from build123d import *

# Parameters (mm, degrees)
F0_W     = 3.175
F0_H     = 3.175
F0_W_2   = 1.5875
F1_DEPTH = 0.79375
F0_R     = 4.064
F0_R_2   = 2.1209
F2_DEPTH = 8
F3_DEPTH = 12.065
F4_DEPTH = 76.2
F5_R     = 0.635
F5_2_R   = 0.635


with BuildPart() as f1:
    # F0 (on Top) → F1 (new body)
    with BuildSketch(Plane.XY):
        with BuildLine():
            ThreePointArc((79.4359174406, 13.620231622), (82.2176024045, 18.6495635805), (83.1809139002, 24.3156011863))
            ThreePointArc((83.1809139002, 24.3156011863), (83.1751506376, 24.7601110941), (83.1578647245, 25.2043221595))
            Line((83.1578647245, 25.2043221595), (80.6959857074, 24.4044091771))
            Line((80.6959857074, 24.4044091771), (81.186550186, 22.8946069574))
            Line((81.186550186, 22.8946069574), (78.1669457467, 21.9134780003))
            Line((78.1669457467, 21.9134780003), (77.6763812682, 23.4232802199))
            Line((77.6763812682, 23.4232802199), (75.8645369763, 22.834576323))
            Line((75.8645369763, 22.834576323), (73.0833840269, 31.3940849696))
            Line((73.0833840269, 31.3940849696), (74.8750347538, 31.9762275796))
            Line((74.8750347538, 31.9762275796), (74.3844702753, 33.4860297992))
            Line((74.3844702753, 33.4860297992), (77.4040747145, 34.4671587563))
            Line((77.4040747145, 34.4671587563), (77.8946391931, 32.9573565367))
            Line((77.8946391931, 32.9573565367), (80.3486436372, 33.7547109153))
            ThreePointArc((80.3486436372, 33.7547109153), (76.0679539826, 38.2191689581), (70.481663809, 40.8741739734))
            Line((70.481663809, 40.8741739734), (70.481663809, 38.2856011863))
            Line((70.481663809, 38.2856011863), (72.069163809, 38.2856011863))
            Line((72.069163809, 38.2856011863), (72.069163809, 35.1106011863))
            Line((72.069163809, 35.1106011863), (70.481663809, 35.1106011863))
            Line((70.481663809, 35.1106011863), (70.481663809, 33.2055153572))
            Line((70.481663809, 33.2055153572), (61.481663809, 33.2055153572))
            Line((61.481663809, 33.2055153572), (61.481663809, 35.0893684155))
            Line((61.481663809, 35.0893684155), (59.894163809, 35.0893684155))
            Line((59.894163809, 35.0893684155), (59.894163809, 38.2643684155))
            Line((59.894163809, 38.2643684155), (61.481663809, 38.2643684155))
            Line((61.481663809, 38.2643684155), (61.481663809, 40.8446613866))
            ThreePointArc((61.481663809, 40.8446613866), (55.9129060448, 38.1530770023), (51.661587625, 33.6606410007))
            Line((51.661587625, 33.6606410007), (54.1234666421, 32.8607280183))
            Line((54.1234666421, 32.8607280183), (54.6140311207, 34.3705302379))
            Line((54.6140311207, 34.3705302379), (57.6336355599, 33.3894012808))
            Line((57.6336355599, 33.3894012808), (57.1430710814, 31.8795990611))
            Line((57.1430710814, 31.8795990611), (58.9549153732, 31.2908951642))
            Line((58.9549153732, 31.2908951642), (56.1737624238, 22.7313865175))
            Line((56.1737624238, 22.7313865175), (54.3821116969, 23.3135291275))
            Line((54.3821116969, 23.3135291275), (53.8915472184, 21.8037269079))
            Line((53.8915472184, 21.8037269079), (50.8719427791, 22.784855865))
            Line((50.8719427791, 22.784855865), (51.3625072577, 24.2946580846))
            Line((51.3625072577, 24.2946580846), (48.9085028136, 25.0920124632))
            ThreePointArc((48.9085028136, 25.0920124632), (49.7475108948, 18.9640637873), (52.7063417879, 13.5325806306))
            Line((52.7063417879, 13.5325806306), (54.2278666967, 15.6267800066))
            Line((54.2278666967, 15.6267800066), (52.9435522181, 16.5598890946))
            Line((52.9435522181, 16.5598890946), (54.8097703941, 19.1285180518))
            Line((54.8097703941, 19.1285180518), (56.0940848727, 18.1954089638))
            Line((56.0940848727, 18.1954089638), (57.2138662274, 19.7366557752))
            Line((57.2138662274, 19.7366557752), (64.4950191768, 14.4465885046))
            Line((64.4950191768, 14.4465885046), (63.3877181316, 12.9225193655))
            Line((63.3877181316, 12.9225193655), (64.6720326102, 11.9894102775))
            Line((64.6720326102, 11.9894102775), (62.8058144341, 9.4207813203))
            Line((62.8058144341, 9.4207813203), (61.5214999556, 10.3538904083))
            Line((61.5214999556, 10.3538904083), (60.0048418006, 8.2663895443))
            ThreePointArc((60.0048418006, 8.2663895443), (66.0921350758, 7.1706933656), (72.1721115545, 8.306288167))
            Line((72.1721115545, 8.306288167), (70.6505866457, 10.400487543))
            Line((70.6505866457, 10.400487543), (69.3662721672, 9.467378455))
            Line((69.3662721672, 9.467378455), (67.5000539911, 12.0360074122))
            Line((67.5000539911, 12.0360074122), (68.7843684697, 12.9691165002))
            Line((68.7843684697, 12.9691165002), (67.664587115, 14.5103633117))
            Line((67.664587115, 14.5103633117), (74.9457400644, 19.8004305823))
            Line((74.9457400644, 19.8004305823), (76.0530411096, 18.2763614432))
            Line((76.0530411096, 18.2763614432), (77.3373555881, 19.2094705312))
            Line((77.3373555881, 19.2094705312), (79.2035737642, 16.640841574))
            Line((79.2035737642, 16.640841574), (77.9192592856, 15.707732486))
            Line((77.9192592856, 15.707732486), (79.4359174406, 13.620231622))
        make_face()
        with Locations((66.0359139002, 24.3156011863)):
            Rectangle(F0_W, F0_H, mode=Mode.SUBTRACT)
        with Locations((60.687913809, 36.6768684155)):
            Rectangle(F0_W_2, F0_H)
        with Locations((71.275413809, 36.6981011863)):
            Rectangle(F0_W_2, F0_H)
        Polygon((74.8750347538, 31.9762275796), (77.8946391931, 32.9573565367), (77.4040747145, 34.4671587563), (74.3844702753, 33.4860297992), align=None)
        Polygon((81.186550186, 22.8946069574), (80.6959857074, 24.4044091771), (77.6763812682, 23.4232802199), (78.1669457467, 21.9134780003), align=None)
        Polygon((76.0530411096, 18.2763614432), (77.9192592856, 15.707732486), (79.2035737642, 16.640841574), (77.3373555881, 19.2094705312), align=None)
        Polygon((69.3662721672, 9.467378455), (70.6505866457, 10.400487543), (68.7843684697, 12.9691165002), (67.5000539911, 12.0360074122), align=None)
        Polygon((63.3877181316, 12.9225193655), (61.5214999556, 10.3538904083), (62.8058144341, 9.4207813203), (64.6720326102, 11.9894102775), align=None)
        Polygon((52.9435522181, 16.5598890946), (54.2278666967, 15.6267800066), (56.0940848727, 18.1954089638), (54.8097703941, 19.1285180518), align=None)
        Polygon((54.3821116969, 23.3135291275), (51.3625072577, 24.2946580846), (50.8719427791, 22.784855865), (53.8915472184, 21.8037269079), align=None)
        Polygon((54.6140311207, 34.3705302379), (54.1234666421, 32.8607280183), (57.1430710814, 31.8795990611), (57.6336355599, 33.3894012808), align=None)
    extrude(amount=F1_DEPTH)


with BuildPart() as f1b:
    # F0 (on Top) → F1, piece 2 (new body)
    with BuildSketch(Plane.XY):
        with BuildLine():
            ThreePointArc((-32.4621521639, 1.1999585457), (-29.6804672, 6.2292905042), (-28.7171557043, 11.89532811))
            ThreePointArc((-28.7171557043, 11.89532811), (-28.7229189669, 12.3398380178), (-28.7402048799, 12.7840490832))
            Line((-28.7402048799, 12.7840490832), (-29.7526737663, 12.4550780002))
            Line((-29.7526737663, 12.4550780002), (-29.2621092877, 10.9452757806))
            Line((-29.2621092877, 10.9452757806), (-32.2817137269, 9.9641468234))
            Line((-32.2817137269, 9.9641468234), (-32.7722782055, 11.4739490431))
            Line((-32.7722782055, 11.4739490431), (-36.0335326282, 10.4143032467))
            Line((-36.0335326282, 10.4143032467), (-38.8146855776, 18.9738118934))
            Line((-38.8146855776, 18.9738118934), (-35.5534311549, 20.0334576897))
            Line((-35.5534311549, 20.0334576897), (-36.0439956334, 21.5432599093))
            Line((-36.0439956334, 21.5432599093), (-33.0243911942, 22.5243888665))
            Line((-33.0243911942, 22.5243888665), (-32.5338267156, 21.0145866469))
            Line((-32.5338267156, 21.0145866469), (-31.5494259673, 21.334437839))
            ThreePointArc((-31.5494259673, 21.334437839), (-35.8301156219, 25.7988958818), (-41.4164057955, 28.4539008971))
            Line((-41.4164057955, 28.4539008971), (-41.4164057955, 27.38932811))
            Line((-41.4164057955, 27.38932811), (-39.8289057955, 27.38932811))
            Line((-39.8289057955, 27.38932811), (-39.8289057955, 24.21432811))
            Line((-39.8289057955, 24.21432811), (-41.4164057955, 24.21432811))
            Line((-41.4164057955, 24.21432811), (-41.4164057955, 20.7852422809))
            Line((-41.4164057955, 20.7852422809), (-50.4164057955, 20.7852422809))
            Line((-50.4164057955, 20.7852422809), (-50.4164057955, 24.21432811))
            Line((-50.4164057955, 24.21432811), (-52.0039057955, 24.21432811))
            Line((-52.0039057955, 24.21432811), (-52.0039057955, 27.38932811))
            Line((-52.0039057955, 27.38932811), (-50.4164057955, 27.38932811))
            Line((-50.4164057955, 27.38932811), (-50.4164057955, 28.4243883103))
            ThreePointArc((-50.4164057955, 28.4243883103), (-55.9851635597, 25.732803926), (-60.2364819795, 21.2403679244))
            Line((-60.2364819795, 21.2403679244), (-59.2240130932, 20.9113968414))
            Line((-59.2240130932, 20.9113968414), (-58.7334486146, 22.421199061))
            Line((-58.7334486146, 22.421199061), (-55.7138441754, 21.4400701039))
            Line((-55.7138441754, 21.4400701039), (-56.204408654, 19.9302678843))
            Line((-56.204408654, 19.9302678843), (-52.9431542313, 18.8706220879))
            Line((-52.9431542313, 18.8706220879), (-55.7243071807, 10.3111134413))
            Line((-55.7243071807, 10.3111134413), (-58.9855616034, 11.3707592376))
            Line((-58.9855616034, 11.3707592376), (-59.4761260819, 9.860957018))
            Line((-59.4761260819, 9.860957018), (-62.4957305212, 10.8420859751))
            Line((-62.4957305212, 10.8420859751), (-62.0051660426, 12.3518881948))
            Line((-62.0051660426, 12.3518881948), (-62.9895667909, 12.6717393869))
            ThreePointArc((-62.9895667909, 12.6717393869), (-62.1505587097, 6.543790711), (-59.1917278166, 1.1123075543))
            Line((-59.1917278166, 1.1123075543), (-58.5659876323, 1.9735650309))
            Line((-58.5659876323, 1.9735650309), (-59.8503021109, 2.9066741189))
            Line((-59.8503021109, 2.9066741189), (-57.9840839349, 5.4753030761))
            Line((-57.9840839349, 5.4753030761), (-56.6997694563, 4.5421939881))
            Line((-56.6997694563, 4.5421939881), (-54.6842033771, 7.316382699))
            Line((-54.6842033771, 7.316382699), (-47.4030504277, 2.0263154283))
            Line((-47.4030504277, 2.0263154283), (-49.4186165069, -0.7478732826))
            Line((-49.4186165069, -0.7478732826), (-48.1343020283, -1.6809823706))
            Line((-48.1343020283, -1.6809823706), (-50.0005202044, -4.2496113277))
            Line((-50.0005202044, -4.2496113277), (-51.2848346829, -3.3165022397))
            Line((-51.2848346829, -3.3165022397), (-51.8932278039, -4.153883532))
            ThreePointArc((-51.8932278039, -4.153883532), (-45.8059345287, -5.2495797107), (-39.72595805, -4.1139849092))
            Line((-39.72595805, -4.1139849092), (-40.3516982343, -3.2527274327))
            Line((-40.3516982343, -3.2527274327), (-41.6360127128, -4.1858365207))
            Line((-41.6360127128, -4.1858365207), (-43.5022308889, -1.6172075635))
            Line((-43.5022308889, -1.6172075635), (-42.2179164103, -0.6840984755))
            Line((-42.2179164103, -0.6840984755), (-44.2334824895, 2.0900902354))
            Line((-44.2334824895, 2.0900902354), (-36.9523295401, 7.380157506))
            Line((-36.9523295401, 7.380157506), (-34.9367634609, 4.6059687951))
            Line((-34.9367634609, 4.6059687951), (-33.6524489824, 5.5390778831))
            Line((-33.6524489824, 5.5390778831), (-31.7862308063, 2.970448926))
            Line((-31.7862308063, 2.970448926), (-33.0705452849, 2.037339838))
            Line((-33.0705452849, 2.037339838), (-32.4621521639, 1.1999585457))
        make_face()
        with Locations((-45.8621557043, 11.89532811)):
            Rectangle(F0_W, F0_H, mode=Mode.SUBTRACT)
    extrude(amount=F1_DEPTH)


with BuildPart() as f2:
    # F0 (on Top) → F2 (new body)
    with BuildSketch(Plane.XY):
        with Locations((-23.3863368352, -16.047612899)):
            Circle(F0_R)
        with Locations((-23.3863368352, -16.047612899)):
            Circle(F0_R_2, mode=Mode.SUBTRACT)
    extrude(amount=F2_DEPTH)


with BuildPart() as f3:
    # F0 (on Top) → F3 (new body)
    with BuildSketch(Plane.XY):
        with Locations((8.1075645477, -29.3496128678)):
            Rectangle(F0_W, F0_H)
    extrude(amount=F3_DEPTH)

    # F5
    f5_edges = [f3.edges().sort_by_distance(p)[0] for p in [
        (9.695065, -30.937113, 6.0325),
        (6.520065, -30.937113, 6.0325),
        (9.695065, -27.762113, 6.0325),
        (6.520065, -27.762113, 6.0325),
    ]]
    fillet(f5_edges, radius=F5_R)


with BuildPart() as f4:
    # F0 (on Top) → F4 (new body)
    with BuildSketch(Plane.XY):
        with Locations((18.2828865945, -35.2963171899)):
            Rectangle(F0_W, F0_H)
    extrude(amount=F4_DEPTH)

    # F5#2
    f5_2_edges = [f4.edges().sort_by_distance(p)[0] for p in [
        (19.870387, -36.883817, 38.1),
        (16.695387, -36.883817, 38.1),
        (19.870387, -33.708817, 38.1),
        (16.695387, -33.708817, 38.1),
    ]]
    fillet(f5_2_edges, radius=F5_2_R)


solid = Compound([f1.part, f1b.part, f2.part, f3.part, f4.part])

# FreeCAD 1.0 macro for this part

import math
import FreeCAD as App
import Part
import Sketcher

V = App.Vector
Q = App.Units.Quantity


def edges_at(feature, points):
    """Names of the edges that pass closest to the given points."""
    edges = feature.Shape.Edges
    near = lambda p: min(range(len(edges)), key=lambda i: edges[i].distToShape(Part.Vertex(*p))[0])
    return sorted({f"Edge{near(p) + 1}" for p in points})


def add_polygon(sketch, points):
    """Adds a closed chain of lines whose ends are joined by coincident constraints."""
    first, n = sketch.GeometryCount, len(points)
    for a, b in zip(points, points[1:] + points[:1]):
        sketch.addGeometry(Part.LineSegment(App.Vector(*a, 0), App.Vector(*b, 0)), False)
    for i in range(n):
        sketch.addConstraint(Sketcher.Constraint("Coincident", first + i, 2, first + (i + 1) % n, 1))

doc = App.newDocument("Part")
body = doc.addObject("PartDesign::Body", "Body")

# Sketch on XY plane
sketch1 = doc.addObject("Sketcher::SketchObject", "Sketch")
body.addObject(sketch1)
sketch1.AttachmentSupport = (doc.XY_Plane, [""])
sketch1.MapMode = "FlatFace"
sketch1.addGeometry(Part.ArcOfCircle(Part.Circle(V(66.035914, 24.315601, 0), V(0, 0, 1), 17.145), math.radians(-38.595527), math.radians(0)), False)  # 0
sketch1.addGeometry(Part.ArcOfCircle(Part.Circle(V(66.035914, 24.315601, 0), V(0, 0, 1), 17.145), math.radians(0), math.radians(2.971291)), False)  # 1
sketch1.addGeometry(Part.LineSegment(V(83.157865, 25.204322, 0), V(80.695986, 24.404409, 0)), False)  # 2
sketch1.addGeometry(Part.LineSegment(V(80.695986, 24.404409, 0), V(77.676381, 23.42328, 0)), False)  # 3
sketch1.addGeometry(Part.LineSegment(V(77.676381, 23.42328, 0), V(75.864537, 22.834576, 0)), False)  # 4
sketch1.addGeometry(Part.LineSegment(V(75.864537, 22.834576, 0), V(73.083384, 31.394085, 0)), False)  # 5
sketch1.addGeometry(Part.LineSegment(V(73.083384, 31.394085, 0), V(74.875035, 31.976228, 0)), False)  # 6
sketch1.addGeometry(Part.LineSegment(V(74.875035, 31.976228, 0), V(77.894639, 32.957357, 0)), False)  # 7
sketch1.addGeometry(Part.LineSegment(V(77.894639, 32.957357, 0), V(80.348644, 33.754711, 0)), False)  # 8
sketch1.addGeometry(Part.ArcOfCircle(Part.Circle(V(66.035914, 24.315601, 0), V(0, 0, 1), 17.145), math.radians(33.404473), math.radians(74.971291)), False)  # 9
sketch1.addGeometry(Part.LineSegment(V(70.481664, 40.874174, 0), V(70.481664, 33.205515, 0)), False)  # 10
sketch1.addGeometry(Part.LineSegment(V(70.481664, 33.205515, 0), V(61.481664, 33.205515, 0)), False)  # 11
sketch1.addGeometry(Part.LineSegment(V(61.481664, 33.205515, 0), V(61.481664, 40.844661, 0)), False)  # 12
sketch1.addGeometry(Part.ArcOfCircle(Part.Circle(V(66.035914, 24.315601, 0), V(0, 0, 1), 17.145), math.radians(105.404473), math.radians(146.971291)), False)  # 13
sketch1.addGeometry(Part.LineSegment(V(51.661588, 33.660641, 0), V(54.123467, 32.860728, 0)), False)  # 14
sketch1.addGeometry(Part.LineSegment(V(54.123467, 32.860728, 0), V(57.143071, 31.879599, 0)), False)  # 15
sketch1.addGeometry(Part.LineSegment(V(57.143071, 31.879599, 0), V(58.954915, 31.290895, 0)), False)  # 16
sketch1.addGeometry(Part.LineSegment(V(58.954915, 31.290895, 0), V(56.173762, 22.731387, 0)), False)  # 17
sketch1.addGeometry(Part.LineSegment(V(56.173762, 22.731387, 0), V(54.382112, 23.313529, 0)), False)  # 18
sketch1.addGeometry(Part.LineSegment(V(54.382112, 23.313529, 0), V(51.362507, 24.294658, 0)), False)  # 19
sketch1.addGeometry(Part.LineSegment(V(51.362507, 24.294658, 0), V(48.908503, 25.092012, 0)), False)  # 20
sketch1.addGeometry(Part.ArcOfCircle(Part.Circle(V(66.035914, 24.315601, 0), V(0, 0, 1), 17.145), math.radians(177.404473), math.radians(218.971291)), False)  # 21
sketch1.addGeometry(Part.LineSegment(V(52.706342, 13.532581, 0), V(54.227867, 15.62678, 0)), False)  # 22
sketch1.addGeometry(Part.LineSegment(V(54.227867, 15.62678, 0), V(56.094085, 18.195409, 0)), False)  # 23
sketch1.addGeometry(Part.LineSegment(V(56.094085, 18.195409, 0), V(57.213866, 19.736656, 0)), False)  # 24
sketch1.addGeometry(Part.LineSegment(V(57.213866, 19.736656, 0), V(64.495019, 14.446589, 0)), False)  # 25
sketch1.addGeometry(Part.LineSegment(V(64.495019, 14.446589, 0), V(63.387718, 12.922519, 0)), False)  # 26
sketch1.addGeometry(Part.LineSegment(V(63.387718, 12.922519, 0), V(61.5215, 10.35389, 0)), False)  # 27
sketch1.addGeometry(Part.LineSegment(V(61.5215, 10.35389, 0), V(60.004842, 8.26639, 0)), False)  # 28
sketch1.addGeometry(Part.ArcOfCircle(Part.Circle(V(66.035914, 24.315601, 0), V(0, 0, 1), 17.145), math.radians(-110.595527), math.radians(-69.028709)), False)  # 29
sketch1.addGeometry(Part.LineSegment(V(72.172112, 8.306288, 0), V(70.650587, 10.400488, 0)), False)  # 30
sketch1.addGeometry(Part.LineSegment(V(70.650587, 10.400488, 0), V(68.784368, 12.969117, 0)), False)  # 31
sketch1.addGeometry(Part.LineSegment(V(68.784368, 12.969117, 0), V(67.664587, 14.510363, 0)), False)  # 32
sketch1.addGeometry(Part.LineSegment(V(67.664587, 14.510363, 0), V(74.94574, 19.800431, 0)), False)  # 33
sketch1.addGeometry(Part.LineSegment(V(74.94574, 19.800431, 0), V(76.053041, 18.276361, 0)), False)  # 34
sketch1.addGeometry(Part.LineSegment(V(76.053041, 18.276361, 0), V(77.919259, 15.707732, 0)), False)  # 35
sketch1.addGeometry(Part.LineSegment(V(77.919259, 15.707732, 0), V(79.435917, 13.620232, 0)), False)  # 36
add_polygon(sketch1, [(67.623414, 22.728101), (64.448414, 22.728101), (64.448414, 25.903101), (67.623414, 25.903101)])  # lines 37-40
sketch1.addConstraint([
    Sketcher.Constraint("Tangent", 0, 2, 1, 1),
    Sketcher.Constraint("Coincident", 1, 2, 2, 1),
    Sketcher.Constraint("Coincident", 2, 2, 3, 1),
    Sketcher.Constraint("Coincident", 3, 2, 4, 1),
    Sketcher.Constraint("Coincident", 4, 2, 5, 1),
    Sketcher.Constraint("Coincident", 5, 2, 6, 1),
    Sketcher.Constraint("Coincident", 6, 2, 7, 1),
    Sketcher.Constraint("Coincident", 7, 2, 8, 1),
    Sketcher.Constraint("Coincident", 8, 2, 9, 1),
    Sketcher.Constraint("Coincident", 9, 2, 10, 1),
    Sketcher.Constraint("Coincident", 10, 2, 11, 1),
    Sketcher.Constraint("Coincident", 11, 2, 12, 1),
    Sketcher.Constraint("Coincident", 12, 2, 13, 1),
    Sketcher.Constraint("Coincident", 13, 2, 14, 1),
    Sketcher.Constraint("Coincident", 14, 2, 15, 1),
    Sketcher.Constraint("Coincident", 15, 2, 16, 1),
    Sketcher.Constraint("Coincident", 16, 2, 17, 1),
    Sketcher.Constraint("Coincident", 17, 2, 18, 1),
    Sketcher.Constraint("Coincident", 18, 2, 19, 1),
    Sketcher.Constraint("Coincident", 19, 2, 20, 1),
    Sketcher.Constraint("Coincident", 20, 2, 21, 1),
    Sketcher.Constraint("Coincident", 21, 2, 22, 1),
    Sketcher.Constraint("Coincident", 22, 2, 23, 1),
    Sketcher.Constraint("Coincident", 23, 2, 24, 1),
    Sketcher.Constraint("Coincident", 24, 2, 25, 1),
    Sketcher.Constraint("Coincident", 25, 2, 26, 1),
    Sketcher.Constraint("Coincident", 26, 2, 27, 1),
    Sketcher.Constraint("Coincident", 27, 2, 28, 1),
    Sketcher.Constraint("Coincident", 28, 2, 29, 1),
    Sketcher.Constraint("Coincident", 29, 2, 30, 1),
    Sketcher.Constraint("Coincident", 30, 2, 31, 1),
    Sketcher.Constraint("Coincident", 31, 2, 32, 1),
    Sketcher.Constraint("Coincident", 32, 2, 33, 1),
    Sketcher.Constraint("Coincident", 33, 2, 34, 1),
    Sketcher.Constraint("Coincident", 34, 2, 35, 1),
    Sketcher.Constraint("Coincident", 35, 2, 36, 1),
    Sketcher.Constraint("Coincident", 36, 2, 0, 1),
    Sketcher.Constraint("Vertical", 10),
    Sketcher.Constraint("Horizontal", 11),
    Sketcher.Constraint("Vertical", 12),
    Sketcher.Constraint("Horizontal", 37),
    Sketcher.Constraint("Vertical", 38),
    Sketcher.Constraint("Horizontal", 39),
    Sketcher.Constraint("Vertical", 40),
    Sketcher.Constraint("Coincident", 9, 3, 0, 3),
    Sketcher.Constraint("Coincident", 13, 3, 0, 3),
    Sketcher.Constraint("Coincident", 21, 3, 0, 3),
    Sketcher.Constraint("Coincident", 29, 3, 0, 3),
    Sketcher.Constraint("Equal", 0, 1),
    Sketcher.Constraint("Equal", 1, 9),
    Sketcher.Constraint("Equal", 9, 13),
    Sketcher.Constraint("Equal", 13, 21),
    Sketcher.Constraint("Equal", 21, 29),
    Sketcher.Constraint("Parallel", 2, 3),
    Sketcher.Constraint("Parallel", 3, 4),
    Sketcher.Constraint("Perpendicular", 4, 5),
    Sketcher.Constraint("Perpendicular", 5, 6),
    Sketcher.Constraint("Parallel", 6, 7),
    Sketcher.Constraint("Parallel", 7, 8),
    Sketcher.Constraint("Parallel", 14, 15),
    Sketcher.Constraint("Parallel", 15, 16),
    Sketcher.Constraint("Perpendicular", 16, 17),
    Sketcher.Constraint("Perpendicular", 17, 18),
    Sketcher.Constraint("Parallel", 18, 19),
    Sketcher.Constraint("Parallel", 19, 20),
    Sketcher.Constraint("Parallel", 22, 23),
    Sketcher.Constraint("Parallel", 23, 24),
    Sketcher.Constraint("Perpendicular", 24, 25),
    Sketcher.Constraint("Perpendicular", 25, 26),
    Sketcher.Constraint("Parallel", 26, 27),
    Sketcher.Constraint("Parallel", 27, 28),
    Sketcher.Constraint("Parallel", 30, 31),
    Sketcher.Constraint("Parallel", 31, 32),
    Sketcher.Constraint("Perpendicular", 32, 33),
    Sketcher.Constraint("Perpendicular", 33, 34),
    Sketcher.Constraint("Parallel", 34, 35),
    Sketcher.Constraint("Parallel", 35, 36),
    Sketcher.Constraint("Horizontal", 29, 3, 0, 2),
    Sketcher.Constraint("Equal", 39, 38),
    Sketcher.Constraint("Equal", 3, 7),
    Sketcher.Constraint("Equal", 2, 14),
    Sketcher.Constraint("Equal", 7, 15),
    Sketcher.Constraint("Equal", 4, 16),
    Sketcher.Constraint("Equal", 5, 17),
    Sketcher.Constraint("Equal", 6, 18),
    Sketcher.Constraint("Equal", 15, 19),
    Sketcher.Constraint("Equal", 8, 20),
    Sketcher.Constraint("Equal", 14, 22),
    Sketcher.Constraint("Equal", 19, 23),
    Sketcher.Constraint("Equal", 16, 24),
    Sketcher.Constraint("Equal", 17, 25),
    Sketcher.Constraint("Equal", 18, 26),
    Sketcher.Constraint("Equal", 23, 27),
    Sketcher.Constraint("Equal", 20, 28),
    Sketcher.Constraint("Equal", 22, 30),
    Sketcher.Constraint("Equal", 27, 31),
    Sketcher.Constraint("Equal", 24, 32),
    Sketcher.Constraint("Equal", 25, 33),
    Sketcher.Constraint("Equal", 26, 34),
    Sketcher.Constraint("Equal", 31, 35),
    Sketcher.Constraint("Equal", 28, 36),
    Sketcher.Constraint("Angle", 2, Q("-162 deg")),
    Sketcher.Constraint("Angle", 14, Q("-18 deg")),
    Sketcher.Constraint("Angle", 22, Q("54 deg")),
    Sketcher.Constraint("Angle", 30, Q("126 deg")),
    Sketcher.Constraint("Radius", 0, Q("0.675 in")),
    Sketcher.Constraint("DistanceX", 37, 2, 37, 1, Q("0.125 in")),
    Sketcher.Constraint("Distance", 3, Q("0.125 in")),
    Sketcher.Constraint("DistanceX", 37, 2, 1, 3, Q("0.0625 in")),
    Sketcher.Constraint("DistanceY", 37, 2, 1, 3, Q("0.0625 in")),
    Sketcher.Constraint("DistanceX", 11, 2, 11, 1, Q("9 mm")),
    Sketcher.Constraint("Distance", 5, Q("9 mm")),
    Sketcher.Constraint("DistanceY", 10, 2, 10, 1, Q("7.668659 mm")),
    Sketcher.Constraint("DistanceY", -1, 1, 0, 3, Q("24.315601 mm")),
    Sketcher.Constraint("DistanceY", -1, 1, 15, 2, Q("31.879599 mm")),
    Sketcher.Constraint("DistanceX", -1, 1, 27, 2, Q("61.5215 mm")),
    Sketcher.Constraint("DistanceY", 2, 2, 8, 2, Q("9.350302 mm")),
    Sketcher.Constraint("DistanceY", 18, 2, 14, 2, Q("9.547199 mm")),
    Sketcher.Constraint("DistanceX", 22, 2, 24, 2, Q("2.986 mm")),
    Sketcher.Constraint("DistanceY", 12, 1, 12, 2, Q("7.639146 mm")),
])
pad1 = doc.addObject("PartDesign::Pad", "Pad")
body.addObject(pad1)
pad1.Profile = sketch1
pad1.Length = Q("0.03125 in")
body2 = doc.addObject("PartDesign::Body", "Body001")

# Sketch on XY plane
sketch2 = doc.addObject("Sketcher::SketchObject", "Sketch001")
body2.addObject(sketch2)
sketch2.AttachmentSupport = (doc.getObject("XY_Plane001"), [""])
sketch2.MapMode = "FlatFace"
sketch2.addGeometry(Part.ArcOfCircle(Part.Circle(V(-45.862156, 11.895328, 0), V(0, 0, 1), 17.145), math.radians(-38.595527), math.radians(0)), False)  # 0
sketch2.addGeometry(Part.ArcOfCircle(Part.Circle(V(-45.862156, 11.895328, 0), V(0, 0, 1), 17.145), math.radians(0), math.radians(2.971291)), False)  # 1
sketch2.addGeometry(Part.LineSegment(V(-28.740205, 12.784049, 0), V(-29.752674, 12.455078, 0)), False)  # 2
sketch2.addGeometry(Part.LineSegment(V(-29.752674, 12.455078, 0), V(-29.262109, 10.945276, 0)), False)  # 3
sketch2.addGeometry(Part.LineSegment(V(-29.262109, 10.945276, 0), V(-32.281714, 9.964147, 0)), False)  # 4
sketch2.addGeometry(Part.LineSegment(V(-32.281714, 9.964147, 0), V(-32.772278, 11.473949, 0)), False)  # 5
sketch2.addGeometry(Part.LineSegment(V(-32.772278, 11.473949, 0), V(-36.033533, 10.414303, 0)), False)  # 6
sketch2.addGeometry(Part.LineSegment(V(-36.033533, 10.414303, 0), V(-38.814686, 18.973812, 0)), False)  # 7
sketch2.addGeometry(Part.LineSegment(V(-38.814686, 18.973812, 0), V(-35.553431, 20.033458, 0)), False)  # 8
sketch2.addGeometry(Part.LineSegment(V(-35.553431, 20.033458, 0), V(-36.043996, 21.54326, 0)), False)  # 9
sketch2.addGeometry(Part.LineSegment(V(-36.043996, 21.54326, 0), V(-33.024391, 22.524389, 0)), False)  # 10
sketch2.addGeometry(Part.LineSegment(V(-33.024391, 22.524389, 0), V(-32.533827, 21.014587, 0)), False)  # 11
sketch2.addGeometry(Part.LineSegment(V(-32.533827, 21.014587, 0), V(-31.549426, 21.334438, 0)), False)  # 12
sketch2.addGeometry(Part.ArcOfCircle(Part.Circle(V(-45.862156, 11.895328, 0), V(0, 0, 1), 17.145), math.radians(33.404473), math.radians(74.971291)), False)  # 13
sketch2.addGeometry(Part.LineSegment(V(-41.416406, 28.453901, 0), V(-41.416406, 27.389328, 0)), False)  # 14
sketch2.addGeometry(Part.LineSegment(V(-41.416406, 27.389328, 0), V(-39.828906, 27.389328, 0)), False)  # 15
sketch2.addGeometry(Part.LineSegment(V(-39.828906, 27.389328, 0), V(-39.828906, 24.214328, 0)), False)  # 16
sketch2.addGeometry(Part.LineSegment(V(-39.828906, 24.214328, 0), V(-41.416406, 24.214328, 0)), False)  # 17
sketch2.addGeometry(Part.LineSegment(V(-41.416406, 24.214328, 0), V(-41.416406, 20.785242, 0)), False)  # 18
sketch2.addGeometry(Part.LineSegment(V(-41.416406, 20.785242, 0), V(-50.416406, 20.785242, 0)), False)  # 19
sketch2.addGeometry(Part.LineSegment(V(-50.416406, 20.785242, 0), V(-50.416406, 24.214328, 0)), False)  # 20
sketch2.addGeometry(Part.LineSegment(V(-50.416406, 24.214328, 0), V(-52.003906, 24.214328, 0)), False)  # 21
sketch2.addGeometry(Part.LineSegment(V(-52.003906, 24.214328, 0), V(-52.003906, 27.389328, 0)), False)  # 22
sketch2.addGeometry(Part.LineSegment(V(-52.003906, 27.389328, 0), V(-50.416406, 27.389328, 0)), False)  # 23
sketch2.addGeometry(Part.LineSegment(V(-50.416406, 27.389328, 0), V(-50.416406, 28.424388, 0)), False)  # 24
sketch2.addGeometry(Part.ArcOfCircle(Part.Circle(V(-45.862156, 11.895328, 0), V(0, 0, 1), 17.145), math.radians(105.404473), math.radians(146.971291)), False)  # 25
sketch2.addGeometry(Part.LineSegment(V(-60.236482, 21.240368, 0), V(-59.224013, 20.911397, 0)), False)  # 26
sketch2.addGeometry(Part.LineSegment(V(-59.224013, 20.911397, 0), V(-58.733449, 22.421199, 0)), False)  # 27
sketch2.addGeometry(Part.LineSegment(V(-58.733449, 22.421199, 0), V(-55.713844, 21.44007, 0)), False)  # 28
sketch2.addGeometry(Part.LineSegment(V(-55.713844, 21.44007, 0), V(-56.204409, 19.930268, 0)), False)  # 29
sketch2.addGeometry(Part.LineSegment(V(-56.204409, 19.930268, 0), V(-52.943154, 18.870622, 0)), False)  # 30
sketch2.addGeometry(Part.LineSegment(V(-52.943154, 18.870622, 0), V(-55.724307, 10.311113, 0)), False)  # 31
sketch2.addGeometry(Part.LineSegment(V(-55.724307, 10.311113, 0), V(-58.985562, 11.370759, 0)), False)  # 32
sketch2.addGeometry(Part.LineSegment(V(-58.985562, 11.370759, 0), V(-59.476126, 9.860957, 0)), False)  # 33
sketch2.addGeometry(Part.LineSegment(V(-59.476126, 9.860957, 0), V(-62.495731, 10.842086, 0)), False)  # 34
sketch2.addGeometry(Part.LineSegment(V(-62.495731, 10.842086, 0), V(-62.005166, 12.351888, 0)), False)  # 35
sketch2.addGeometry(Part.LineSegment(V(-62.005166, 12.351888, 0), V(-62.989567, 12.671739, 0)), False)  # 36
sketch2.addGeometry(Part.ArcOfCircle(Part.Circle(V(-45.862156, 11.895328, 0), V(0, 0, 1), 17.145), math.radians(177.404473), math.radians(218.971291)), False)  # 37
sketch2.addGeometry(Part.LineSegment(V(-59.191728, 1.112308, 0), V(-58.565988, 1.973565, 0)), False)  # 38
sketch2.addGeometry(Part.LineSegment(V(-58.565988, 1.973565, 0), V(-59.850302, 2.906674, 0)), False)  # 39
sketch2.addGeometry(Part.LineSegment(V(-59.850302, 2.906674, 0), V(-57.984084, 5.475303, 0)), False)  # 40
sketch2.addGeometry(Part.LineSegment(V(-57.984084, 5.475303, 0), V(-56.699769, 4.542194, 0)), False)  # 41
sketch2.addGeometry(Part.LineSegment(V(-56.699769, 4.542194, 0), V(-54.684203, 7.316383, 0)), False)  # 42
sketch2.addGeometry(Part.LineSegment(V(-54.684203, 7.316383, 0), V(-47.40305, 2.026315, 0)), False)  # 43
sketch2.addGeometry(Part.LineSegment(V(-47.40305, 2.026315, 0), V(-49.418617, -0.747873, 0)), False)  # 44
sketch2.addGeometry(Part.LineSegment(V(-49.418617, -0.747873, 0), V(-48.134302, -1.680982, 0)), False)  # 45
sketch2.addGeometry(Part.LineSegment(V(-48.134302, -1.680982, 0), V(-50.00052, -4.249611, 0)), False)  # 46
sketch2.addGeometry(Part.LineSegment(V(-50.00052, -4.249611, 0), V(-51.284835, -3.316502, 0)), False)  # 47
sketch2.addGeometry(Part.LineSegment(V(-51.284835, -3.316502, 0), V(-51.893228, -4.153884, 0)), False)  # 48
sketch2.addGeometry(Part.ArcOfCircle(Part.Circle(V(-45.862156, 11.895328, 0), V(0, 0, 1), 17.145), math.radians(-110.595527), math.radians(-69.028709)), False)  # 49
sketch2.addGeometry(Part.LineSegment(V(-39.725958, -4.113985, 0), V(-40.351698, -3.252727, 0)), False)  # 50
sketch2.addGeometry(Part.LineSegment(V(-40.351698, -3.252727, 0), V(-41.636013, -4.185837, 0)), False)  # 51
sketch2.addGeometry(Part.LineSegment(V(-41.636013, -4.185837, 0), V(-43.502231, -1.617208, 0)), False)  # 52
sketch2.addGeometry(Part.LineSegment(V(-43.502231, -1.617208, 0), V(-42.217916, -0.684098, 0)), False)  # 53
sketch2.addGeometry(Part.LineSegment(V(-42.217916, -0.684098, 0), V(-44.233482, 2.09009, 0)), False)  # 54
sketch2.addGeometry(Part.LineSegment(V(-44.233482, 2.09009, 0), V(-36.95233, 7.380158, 0)), False)  # 55
sketch2.addGeometry(Part.LineSegment(V(-36.95233, 7.380158, 0), V(-34.936763, 4.605969, 0)), False)  # 56
sketch2.addGeometry(Part.LineSegment(V(-34.936763, 4.605969, 0), V(-33.652449, 5.539078, 0)), False)  # 57
sketch2.addGeometry(Part.LineSegment(V(-33.652449, 5.539078, 0), V(-31.786231, 2.970449, 0)), False)  # 58
sketch2.addGeometry(Part.LineSegment(V(-31.786231, 2.970449, 0), V(-33.070545, 2.03734, 0)), False)  # 59
sketch2.addGeometry(Part.LineSegment(V(-33.070545, 2.03734, 0), V(-32.462152, 1.199959, 0)), False)  # 60
add_polygon(sketch2, [(-44.274656, 10.307828), (-47.449656, 10.307828), (-47.449656, 13.482828), (-44.274656, 13.482828)])  # lines 61-64
sketch2.addConstraint([
    Sketcher.Constraint("Tangent", 0, 2, 1, 1),
    Sketcher.Constraint("Coincident", 1, 2, 2, 1),
    Sketcher.Constraint("Coincident", 2, 2, 3, 1),
    Sketcher.Constraint("Coincident", 3, 2, 4, 1),
    Sketcher.Constraint("Coincident", 4, 2, 5, 1),
    Sketcher.Constraint("Coincident", 5, 2, 6, 1),
    Sketcher.Constraint("Coincident", 6, 2, 7, 1),
    Sketcher.Constraint("Coincident", 7, 2, 8, 1),
    Sketcher.Constraint("Coincident", 8, 2, 9, 1),
    Sketcher.Constraint("Coincident", 9, 2, 10, 1),
    Sketcher.Constraint("Coincident", 10, 2, 11, 1),
    Sketcher.Constraint("Coincident", 11, 2, 12, 1),
    Sketcher.Constraint("Coincident", 12, 2, 13, 1),
    Sketcher.Constraint("Coincident", 13, 2, 14, 1),
    Sketcher.Constraint("Coincident", 14, 2, 15, 1),
    Sketcher.Constraint("Coincident", 15, 2, 16, 1),
    Sketcher.Constraint("Coincident", 16, 2, 17, 1),
    Sketcher.Constraint("Coincident", 17, 2, 18, 1),
    Sketcher.Constraint("Coincident", 18, 2, 19, 1),
    Sketcher.Constraint("Coincident", 19, 2, 20, 1),
    Sketcher.Constraint("Coincident", 20, 2, 21, 1),
    Sketcher.Constraint("Coincident", 21, 2, 22, 1),
    Sketcher.Constraint("Coincident", 22, 2, 23, 1),
    Sketcher.Constraint("Coincident", 23, 2, 24, 1),
    Sketcher.Constraint("Coincident", 24, 2, 25, 1),
    Sketcher.Constraint("Coincident", 25, 2, 26, 1),
    Sketcher.Constraint("Coincident", 26, 2, 27, 1),
    Sketcher.Constraint("Coincident", 27, 2, 28, 1),
    Sketcher.Constraint("Coincident", 28, 2, 29, 1),
    Sketcher.Constraint("Coincident", 29, 2, 30, 1),
    Sketcher.Constraint("Coincident", 30, 2, 31, 1),
    Sketcher.Constraint("Coincident", 31, 2, 32, 1),
    Sketcher.Constraint("Coincident", 32, 2, 33, 1),
    Sketcher.Constraint("Coincident", 33, 2, 34, 1),
    Sketcher.Constraint("Coincident", 34, 2, 35, 1),
    Sketcher.Constraint("Coincident", 35, 2, 36, 1),
    Sketcher.Constraint("Coincident", 36, 2, 37, 1),
    Sketcher.Constraint("Coincident", 37, 2, 38, 1),
    Sketcher.Constraint("Coincident", 38, 2, 39, 1),
    Sketcher.Constraint("Coincident", 39, 2, 40, 1),
    Sketcher.Constraint("Coincident", 40, 2, 41, 1),
    Sketcher.Constraint("Coincident", 41, 2, 42, 1),
    Sketcher.Constraint("Coincident", 42, 2, 43, 1),
    Sketcher.Constraint("Coincident", 43, 2, 44, 1),
    Sketcher.Constraint("Coincident", 44, 2, 45, 1),
    Sketcher.Constraint("Coincident", 45, 2, 46, 1),
    Sketcher.Constraint("Coincident", 46, 2, 47, 1),
    Sketcher.Constraint("Coincident", 47, 2, 48, 1),
    Sketcher.Constraint("Coincident", 48, 2, 49, 1),
    Sketcher.Constraint("Coincident", 49, 2, 50, 1),
    Sketcher.Constraint("Coincident", 50, 2, 51, 1),
    Sketcher.Constraint("Coincident", 51, 2, 52, 1),
    Sketcher.Constraint("Coincident", 52, 2, 53, 1),
    Sketcher.Constraint("Coincident", 53, 2, 54, 1),
    Sketcher.Constraint("Coincident", 54, 2, 55, 1),
    Sketcher.Constraint("Coincident", 55, 2, 56, 1),
    Sketcher.Constraint("Coincident", 56, 2, 57, 1),
    Sketcher.Constraint("Coincident", 57, 2, 58, 1),
    Sketcher.Constraint("Coincident", 58, 2, 59, 1),
    Sketcher.Constraint("Coincident", 59, 2, 60, 1),
    Sketcher.Constraint("Coincident", 60, 2, 0, 1),
    Sketcher.Constraint("Vertical", 14),
    Sketcher.Constraint("Horizontal", 15),
    Sketcher.Constraint("Vertical", 16),
    Sketcher.Constraint("Horizontal", 17),
    Sketcher.Constraint("Vertical", 18),
    Sketcher.Constraint("Horizontal", 19),
    Sketcher.Constraint("Vertical", 20),
    Sketcher.Constraint("Horizontal", 21),
    Sketcher.Constraint("Vertical", 22),
    Sketcher.Constraint("Horizontal", 23),
    Sketcher.Constraint("Vertical", 24),
    Sketcher.Constraint("Horizontal", 61),
    Sketcher.Constraint("Vertical", 62),
    Sketcher.Constraint("Horizontal", 63),
    Sketcher.Constraint("Vertical", 64),
    Sketcher.Constraint("Coincident", 13, 3, 0, 3),
    Sketcher.Constraint("Coincident", 25, 3, 0, 3),
    Sketcher.Constraint("Coincident", 37, 3, 0, 3),
    Sketcher.Constraint("Coincident", 49, 3, 0, 3),
    Sketcher.Constraint("Equal", 0, 1),
    Sketcher.Constraint("Equal", 1, 13),
    Sketcher.Constraint("Equal", 13, 25),
    Sketcher.Constraint("Equal", 25, 37),
    Sketcher.Constraint("Equal", 37, 49),
    Sketcher.Constraint("Perpendicular", 2, 3),
    Sketcher.Constraint("Perpendicular", 3, 4),
    Sketcher.Constraint("Perpendicular", 4, 5),
    Sketcher.Constraint("Perpendicular", 5, 6),
    Sketcher.Constraint("Perpendicular", 6, 7),
    Sketcher.Constraint("Perpendicular", 7, 8),
    Sketcher.Constraint("Perpendicular", 8, 9),
    Sketcher.Constraint("Perpendicular", 9, 10),
    Sketcher.Constraint("Perpendicular", 10, 11),
    Sketcher.Constraint("Perpendicular", 11, 12),
    Sketcher.Constraint("Perpendicular", 26, 27),
    Sketcher.Constraint("Perpendicular", 27, 28),
    Sketcher.Constraint("Perpendicular", 28, 29),
    Sketcher.Constraint("Perpendicular", 29, 30),
    Sketcher.Constraint("Perpendicular", 30, 31),
    Sketcher.Constraint("Perpendicular", 31, 32),
    Sketcher.Constraint("Perpendicular", 32, 33),
    Sketcher.Constraint("Perpendicular", 33, 34),
    Sketcher.Constraint("Perpendicular", 34, 35),
    Sketcher.Constraint("Perpendicular", 35, 36),
    Sketcher.Constraint("Perpendicular", 38, 39),
    Sketcher.Constraint("Perpendicular", 39, 40),
    Sketcher.Constraint("Perpendicular", 40, 41),
    Sketcher.Constraint("Perpendicular", 41, 42),
    Sketcher.Constraint("Perpendicular", 42, 43),
    Sketcher.Constraint("Perpendicular", 43, 44),
    Sketcher.Constraint("Perpendicular", 44, 45),
    Sketcher.Constraint("Perpendicular", 45, 46),
    Sketcher.Constraint("Perpendicular", 46, 47),
    Sketcher.Constraint("Perpendicular", 47, 48),
    Sketcher.Constraint("Perpendicular", 50, 51),
    Sketcher.Constraint("Perpendicular", 51, 52),
    Sketcher.Constraint("Perpendicular", 52, 53),
    Sketcher.Constraint("Perpendicular", 53, 54),
    Sketcher.Constraint("Perpendicular", 54, 55),
    Sketcher.Constraint("Perpendicular", 55, 56),
    Sketcher.Constraint("Perpendicular", 56, 57),
    Sketcher.Constraint("Perpendicular", 57, 58),
    Sketcher.Constraint("Perpendicular", 58, 59),
    Sketcher.Constraint("Perpendicular", 59, 60),
    Sketcher.Constraint("Horizontal", 49, 3, 0, 2),
    Sketcher.Constraint("Horizontal", 17, 2, 20, 2),
    Sketcher.Constraint("Horizontal", 15, 2, 22, 2),
    Sketcher.Constraint("Vertical", 14, 2, 17, 2),
    Sketcher.Constraint("Vertical", 20, 2, 23, 2),
    Sketcher.Constraint("Equal", 17, 21),
    Sketcher.Constraint("Equal", 63, 16),
    Sketcher.Constraint("Equal", 22, 62),
    Sketcher.Constraint("Equal", 3, 5),
    Sketcher.Constraint("Equal", 6, 8),
    Sketcher.Constraint("Equal", 5, 9),
    Sketcher.Constraint("Equal", 4, 10),
    Sketcher.Constraint("Equal", 9, 11),
    Sketcher.Constraint("Equal", 2, 26),
    Sketcher.Constraint("Equal", 11, 27),
    Sketcher.Constraint("Equal", 10, 28),
    Sketcher.Constraint("Equal", 27, 29),
    Sketcher.Constraint("Equal", 8, 30),
    Sketcher.Constraint("Equal", 7, 31),
    Sketcher.Constraint("Equal", 30, 32),
    Sketcher.Constraint("Equal", 29, 33),
    Sketcher.Constraint("Equal", 28, 34),
    Sketcher.Constraint("Equal", 33, 35),
    Sketcher.Constraint("Equal", 12, 36),
    Sketcher.Constraint("Equal", 26, 38),
    Sketcher.Constraint("Equal", 35, 39),
    Sketcher.Constraint("Equal", 34, 40),
    Sketcher.Constraint("Equal", 39, 41),
    Sketcher.Constraint("Equal", 32, 42),
    Sketcher.Constraint("Equal", 31, 43),
    Sketcher.Constraint("Equal", 42, 44),
    Sketcher.Constraint("Equal", 41, 45),
    Sketcher.Constraint("Equal", 40, 46),
    Sketcher.Constraint("Equal", 45, 47),
    Sketcher.Constraint("Equal", 36, 48),
    Sketcher.Constraint("Equal", 38, 50),
    Sketcher.Constraint("Equal", 47, 51),
    Sketcher.Constraint("Equal", 46, 52),
    Sketcher.Constraint("Equal", 51, 53),
    Sketcher.Constraint("Equal", 44, 54),
    Sketcher.Constraint("Equal", 43, 55),
    Sketcher.Constraint("Equal", 54, 56),
    Sketcher.Constraint("Equal", 53, 57),
    Sketcher.Constraint("Equal", 52, 58),
    Sketcher.Constraint("Equal", 57, 59),
    Sketcher.Constraint("Equal", 48, 60),
    Sketcher.Constraint("Angle", 2, Q("-162 deg")),
    Sketcher.Constraint("Angle", 26, Q("-18 deg")),
    Sketcher.Constraint("Angle", 38, Q("54 deg")),
    Sketcher.Constraint("Angle", 50, Q("126 deg")),
    Sketcher.Constraint("Radius", 0, Q("0.675 in")),
    Sketcher.Constraint("DistanceX", 15, 1, 15, 2, Q("0.0625 in")),
    Sketcher.Constraint("DistanceX", 61, 2, 61, 1, Q("0.125 in")),
    Sketcher.Constraint("Distance", 3, Q("0.0625 in")),
    Sketcher.Constraint("Distance", 4, Q("0.125 in")),
    Sketcher.Constraint("DistanceX", 19, 2, 19, 1, Q("9 mm")),
    Sketcher.Constraint("Distance", 7, Q("9 mm")),
    Sketcher.Constraint("DistanceY", 24, 1, 24, 2, Q("1.03506 mm")),
    Sketcher.Constraint("DistanceY", -1, 1, 13, 2, Q("28.453901 mm")),
    Sketcher.Constraint("DistanceY", -1, 1, 27, 2, Q("22.421199 mm")),
    Sketcher.Constraint("DistanceX", 50, 2, -1, 1, Q("40.351698 mm")),
    Sketcher.Constraint("DistanceY", 53, 2, -1, 1, Q("0.684098 mm")),
    Sketcher.Constraint("Distance", 12, Q("1.03506 mm")),
    Sketcher.Constraint("DistanceY", 18, 2, 18, 1, Q("3.429086 mm")),
    Sketcher.Constraint("DistanceY", -1, 1, 7, 2, Q("18.973812 mm")),
    Sketcher.Constraint("DistanceY", -1, 1, 61, 2, Q("10.307828 mm")),
    Sketcher.Constraint("DistanceX", 61, 2, -1, 1, Q("47.449656 mm")),
])
pad2 = doc.addObject("PartDesign::Pad", "Pad001")
body2.addObject(pad2)
pad2.Profile = sketch2
pad2.Length = Q("0.03125 in")
body3 = doc.addObject("PartDesign::Body", "Body002")

# Sketch on XY plane
sketch3 = doc.addObject("Sketcher::SketchObject", "Sketch002")
body3.addObject(sketch3)
sketch3.AttachmentSupport = (doc.getObject("XY_Plane002"), [""])
sketch3.MapMode = "FlatFace"
sketch3.addGeometry([
    Part.Circle(V(-23.386337, -16.047613, 0), V(0, 0, 1), 4.064),
    Part.Circle(V(-23.386337, -16.047613, 0), V(0, 0, 1), 2.1209),
], False)
sketch3.addConstraint([
    Sketcher.Constraint("Coincident", 1, 3, 0, 3),
    Sketcher.Constraint("Diameter", 0, Q("0.32 in")),
    Sketcher.Constraint("Diameter", 1, Q("0.167 in")),
    Sketcher.Constraint("DistanceX", 0, 3, -1, 1, Q("23.386337 mm")),
    Sketcher.Constraint("DistanceY", 0, 3, -1, 1, Q("16.047613 mm")),
])
pad3 = doc.addObject("PartDesign::Pad", "Pad002")
body3.addObject(pad3)
pad3.Profile = sketch3
pad3.Length = 8
body4 = doc.addObject("PartDesign::Body", "Body003")

# Sketch on XY plane
sketch4 = doc.addObject("Sketcher::SketchObject", "Sketch003")
body4.addObject(sketch4)
sketch4.AttachmentSupport = (doc.getObject("XY_Plane003"), [""])
sketch4.MapMode = "FlatFace"
add_polygon(sketch4, [(6.520065, -27.762113), (6.520065, -30.937113), (9.695065, -30.937113), (9.695065, -27.762113)])  # lines 0-3
sketch4.addConstraint([
    Sketcher.Constraint("Vertical", 0),
    Sketcher.Constraint("Horizontal", 1),
    Sketcher.Constraint("Vertical", 2),
    Sketcher.Constraint("Horizontal", 3),
    Sketcher.Constraint("Equal", 3, 0),
    Sketcher.Constraint("DistanceX", 1, 1, 1, 2, Q("0.125 in")),
    Sketcher.Constraint("DistanceX", -1, 1, 0, 2, Q("6.520065 mm")),
    Sketcher.Constraint("DistanceY", 0, 2, -1, 1, Q("30.937113 mm")),
])
pad4 = doc.addObject("PartDesign::Pad", "Pad003")
body4.addObject(pad4)
pad4.Profile = sketch4
pad4.Length = Q("0.475 in")
doc.recompute()

fillet = doc.addObject("PartDesign::Fillet", "Fillet")
body4.addObject(fillet)
fillet.Base = (pad4, edges_at(pad4, [
    (9.695, -30.937, 6.032),
    (6.52, -30.937, 6.032),
    (9.695, -27.762, 6.032),
    (6.52, -27.762, 6.032),
]))
fillet.Radius = Q("0.025 in")
body5 = doc.addObject("PartDesign::Body", "Body004")

# Sketch on XY plane
sketch5 = doc.addObject("Sketcher::SketchObject", "Sketch004")
body5.addObject(sketch5)
sketch5.AttachmentSupport = (doc.getObject("XY_Plane004"), [""])
sketch5.MapMode = "FlatFace"
add_polygon(sketch5, [(16.695387, -33.708817), (16.695387, -36.883817), (19.870387, -36.883817), (19.870387, -33.708817)])  # lines 0-3
sketch5.addConstraint([
    Sketcher.Constraint("Vertical", 0),
    Sketcher.Constraint("Horizontal", 1),
    Sketcher.Constraint("Vertical", 2),
    Sketcher.Constraint("Horizontal", 3),
    Sketcher.Constraint("Equal", 3, 0),
    Sketcher.Constraint("DistanceX", 1, 1, 1, 2, Q("0.125 in")),
    Sketcher.Constraint("DistanceX", -1, 1, 0, 2, Q("16.695387 mm")),
    Sketcher.Constraint("DistanceY", 0, 2, -1, 1, Q("36.883817 mm")),
])
pad5 = doc.addObject("PartDesign::Pad", "Pad004")
body5.addObject(pad5)
pad5.Profile = sketch5
pad5.Length = Q("3 in")
doc.recompute()

fillet2 = doc.addObject("PartDesign::Fillet", "Fillet001")
body5.addObject(fillet2)
fillet2.Base = (pad5, edges_at(pad5, [
    (19.87, -36.884, 38.1),
    (16.695, -36.884, 38.1),
    (19.87, -33.709, 38.1),
    (16.695, -33.709, 38.1),
]))
fillet2.Radius = Q("0.025 in")

doc.recompute()
